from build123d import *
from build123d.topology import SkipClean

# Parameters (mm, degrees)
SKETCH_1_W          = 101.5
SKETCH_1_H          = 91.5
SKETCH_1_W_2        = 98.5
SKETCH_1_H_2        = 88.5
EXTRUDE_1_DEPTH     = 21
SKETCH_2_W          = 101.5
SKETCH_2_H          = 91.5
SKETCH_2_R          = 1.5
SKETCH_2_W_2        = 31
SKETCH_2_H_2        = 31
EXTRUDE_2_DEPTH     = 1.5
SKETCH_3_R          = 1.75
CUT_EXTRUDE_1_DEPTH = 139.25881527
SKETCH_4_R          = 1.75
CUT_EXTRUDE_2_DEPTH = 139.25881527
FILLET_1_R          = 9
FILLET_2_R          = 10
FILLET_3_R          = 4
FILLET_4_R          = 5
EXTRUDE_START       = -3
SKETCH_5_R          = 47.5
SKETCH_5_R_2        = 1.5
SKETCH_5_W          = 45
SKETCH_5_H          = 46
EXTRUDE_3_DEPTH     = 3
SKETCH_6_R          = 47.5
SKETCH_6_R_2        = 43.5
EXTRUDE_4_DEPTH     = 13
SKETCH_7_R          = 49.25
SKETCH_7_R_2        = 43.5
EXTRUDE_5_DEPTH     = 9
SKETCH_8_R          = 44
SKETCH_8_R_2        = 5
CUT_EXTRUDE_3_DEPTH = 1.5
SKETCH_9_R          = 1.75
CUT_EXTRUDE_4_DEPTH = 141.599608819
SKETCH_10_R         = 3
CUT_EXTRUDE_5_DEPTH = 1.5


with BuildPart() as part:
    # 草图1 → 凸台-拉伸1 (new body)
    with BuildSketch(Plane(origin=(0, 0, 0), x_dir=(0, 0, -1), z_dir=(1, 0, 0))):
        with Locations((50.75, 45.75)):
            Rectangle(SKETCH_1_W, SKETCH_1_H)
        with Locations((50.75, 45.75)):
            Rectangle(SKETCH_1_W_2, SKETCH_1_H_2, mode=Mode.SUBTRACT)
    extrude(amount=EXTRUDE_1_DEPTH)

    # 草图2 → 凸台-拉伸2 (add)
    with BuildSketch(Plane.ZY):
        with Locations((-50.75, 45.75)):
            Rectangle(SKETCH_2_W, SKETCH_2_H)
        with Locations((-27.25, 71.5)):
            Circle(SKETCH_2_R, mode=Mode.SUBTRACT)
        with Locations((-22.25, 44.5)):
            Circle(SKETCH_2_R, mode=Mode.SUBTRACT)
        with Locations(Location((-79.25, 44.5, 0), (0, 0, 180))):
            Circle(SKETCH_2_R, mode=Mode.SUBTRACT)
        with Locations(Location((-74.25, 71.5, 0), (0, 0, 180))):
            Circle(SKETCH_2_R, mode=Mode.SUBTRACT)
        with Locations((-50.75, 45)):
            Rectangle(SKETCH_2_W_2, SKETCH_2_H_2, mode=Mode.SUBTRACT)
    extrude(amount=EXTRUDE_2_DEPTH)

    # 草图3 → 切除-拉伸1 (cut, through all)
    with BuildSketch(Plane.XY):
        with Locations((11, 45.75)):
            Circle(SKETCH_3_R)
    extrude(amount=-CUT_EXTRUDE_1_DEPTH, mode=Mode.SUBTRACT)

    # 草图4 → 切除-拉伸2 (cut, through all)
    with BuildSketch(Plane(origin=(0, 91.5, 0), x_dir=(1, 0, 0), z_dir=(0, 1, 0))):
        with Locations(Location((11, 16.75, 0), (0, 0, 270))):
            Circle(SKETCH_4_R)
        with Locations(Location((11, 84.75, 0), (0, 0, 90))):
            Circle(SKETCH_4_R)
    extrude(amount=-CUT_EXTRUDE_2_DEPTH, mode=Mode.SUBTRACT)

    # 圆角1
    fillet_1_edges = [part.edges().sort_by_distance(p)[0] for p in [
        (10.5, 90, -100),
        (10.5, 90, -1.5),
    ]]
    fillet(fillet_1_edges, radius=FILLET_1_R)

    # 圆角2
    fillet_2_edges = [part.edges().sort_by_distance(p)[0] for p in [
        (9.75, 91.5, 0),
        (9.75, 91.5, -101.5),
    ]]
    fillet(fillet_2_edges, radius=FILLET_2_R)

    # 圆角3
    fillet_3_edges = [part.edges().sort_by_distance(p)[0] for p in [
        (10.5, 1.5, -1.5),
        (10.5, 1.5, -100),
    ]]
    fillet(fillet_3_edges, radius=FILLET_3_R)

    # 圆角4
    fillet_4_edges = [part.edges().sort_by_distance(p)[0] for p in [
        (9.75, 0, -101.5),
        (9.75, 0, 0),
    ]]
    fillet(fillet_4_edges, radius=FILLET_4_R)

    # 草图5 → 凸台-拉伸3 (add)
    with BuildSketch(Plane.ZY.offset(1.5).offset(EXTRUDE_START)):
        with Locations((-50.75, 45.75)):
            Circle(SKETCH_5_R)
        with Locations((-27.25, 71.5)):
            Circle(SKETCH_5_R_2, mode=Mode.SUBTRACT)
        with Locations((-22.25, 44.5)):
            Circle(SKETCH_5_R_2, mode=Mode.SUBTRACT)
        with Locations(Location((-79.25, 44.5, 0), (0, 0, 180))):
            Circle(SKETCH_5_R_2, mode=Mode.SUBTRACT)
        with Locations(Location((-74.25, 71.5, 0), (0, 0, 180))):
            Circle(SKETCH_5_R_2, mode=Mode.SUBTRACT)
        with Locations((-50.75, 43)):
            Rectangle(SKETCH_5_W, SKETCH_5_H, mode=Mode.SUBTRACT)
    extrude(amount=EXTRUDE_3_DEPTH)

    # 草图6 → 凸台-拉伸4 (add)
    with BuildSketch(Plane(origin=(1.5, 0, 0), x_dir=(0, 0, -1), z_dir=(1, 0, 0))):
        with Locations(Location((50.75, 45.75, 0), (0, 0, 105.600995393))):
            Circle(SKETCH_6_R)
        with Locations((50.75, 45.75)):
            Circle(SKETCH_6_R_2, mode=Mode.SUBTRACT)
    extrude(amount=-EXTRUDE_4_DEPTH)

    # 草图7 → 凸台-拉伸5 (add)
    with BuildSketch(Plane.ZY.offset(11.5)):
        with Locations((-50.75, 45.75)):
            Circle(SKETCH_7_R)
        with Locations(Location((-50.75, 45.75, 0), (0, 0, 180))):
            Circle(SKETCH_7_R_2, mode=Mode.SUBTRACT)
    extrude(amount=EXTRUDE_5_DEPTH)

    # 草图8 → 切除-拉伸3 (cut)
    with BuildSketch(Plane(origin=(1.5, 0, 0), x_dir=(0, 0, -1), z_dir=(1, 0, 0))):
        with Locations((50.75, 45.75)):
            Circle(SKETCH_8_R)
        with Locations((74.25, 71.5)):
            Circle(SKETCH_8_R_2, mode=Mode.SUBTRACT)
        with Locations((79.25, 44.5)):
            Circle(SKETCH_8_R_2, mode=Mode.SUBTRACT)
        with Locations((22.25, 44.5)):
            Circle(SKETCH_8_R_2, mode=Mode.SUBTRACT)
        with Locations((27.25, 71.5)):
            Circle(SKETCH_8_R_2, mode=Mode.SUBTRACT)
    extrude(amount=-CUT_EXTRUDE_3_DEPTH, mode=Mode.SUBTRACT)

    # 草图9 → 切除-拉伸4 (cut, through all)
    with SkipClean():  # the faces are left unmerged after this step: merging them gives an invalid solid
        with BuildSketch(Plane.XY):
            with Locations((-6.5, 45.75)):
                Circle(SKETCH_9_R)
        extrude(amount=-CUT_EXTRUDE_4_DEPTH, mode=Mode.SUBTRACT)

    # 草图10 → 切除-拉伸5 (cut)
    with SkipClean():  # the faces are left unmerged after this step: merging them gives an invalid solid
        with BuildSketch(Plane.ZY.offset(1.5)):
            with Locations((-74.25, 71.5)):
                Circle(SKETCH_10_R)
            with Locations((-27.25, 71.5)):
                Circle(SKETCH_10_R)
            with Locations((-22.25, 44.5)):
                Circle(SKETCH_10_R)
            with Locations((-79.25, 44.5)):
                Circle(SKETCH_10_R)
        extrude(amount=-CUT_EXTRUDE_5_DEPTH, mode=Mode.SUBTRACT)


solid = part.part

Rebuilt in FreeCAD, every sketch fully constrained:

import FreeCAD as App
import Part
import Sketcher
from FreeCAD import Vector
Q = App.Units.Quantity


def edges_at(feature, points):
    """Names of the edges that pass closest to the given points."""
    edges = feature.Shape.Edges
    near = lambda p: min(range(len(edges)), key=lambda i: edges[i].distToShape(Part.Vertex(*p))[0])
    return sorted({f"Edge{near(p) + 1}" for p in points})


def add_polygon(sketch, points):
    """Adds a closed chain of lines whose ends are joined by coincident constraints."""
    first, n = sketch.GeometryCount, len(points)
    for a, b in zip(points, points[1:] + points[:1]):
        sketch.addGeometry(Part.LineSegment(App.Vector(*a, 0), App.Vector(*b, 0)), False)
    for i in range(n):
        sketch.addConstraint(Sketcher.Constraint("Coincident", first + i, 2, first + (i + 1) % n, 1))

doc = App.newDocument("Part")
body = doc.addObject("PartDesign::Body", "Body")

# Sketch on YZ plane
sketch1 = doc.addObject("Sketcher::SketchObject", "Sketch")
body.addObject(sketch1)
sketch1.AttachmentSupport = (doc.YZ_Plane, [""])
sketch1.MapMode = "FlatFace"
add_polygon(sketch1, [(92, 0), (0, 0), (0, -102), (92, -102)])  # lines 0-3
add_polygon(sketch1, [(2, -100), (2, -2), (90, -2), (90, -100)])  # lines 4-7
sketch1.addConstraint([
    Sketcher.Constraint("Horizontal", 0),
    Sketcher.Constraint("Vertical", 1),
    Sketcher.Constraint("Horizontal", 2),
    Sketcher.Constraint("Vertical", 3),
    Sketcher.Constraint("Vertical", 4),
    Sketcher.Constraint("Horizontal", 5),
    Sketcher.Constraint("Vertical", 6),
    Sketcher.Constraint("Horizontal", 7),
    Sketcher.Constraint("Coincident", 0, 2, -1, 1),
    Sketcher.Constraint("DistanceX", 0, 2, 0, 1, Q("91.5 mm")),
    Sketcher.Constraint("DistanceX", 5, 1, 5, 2, Q("88.5 mm")),
    Sketcher.Constraint("DistanceY", 1, 2, 1, 1, Q("101.5 mm")),
    Sketcher.Constraint("DistanceY", 4, 1, 4, 2, Q("98.5 mm")),
    Sketcher.Constraint("DistanceX", -1, 1, 5, 2, Q("90 mm")),
    Sketcher.Constraint("DistanceY", 6, 2, -1, 1, Q("100 mm")),
])
pad1 = doc.addObject("PartDesign::Pad", "Pad")
body.addObject(pad1)
pad1.Profile = sketch1
pad1.Length = 21

# Sketch on YZ plane
sketch2 = doc.addObject("Sketcher::SketchObject", "Sketch001")
body.addObject(sketch2)
sketch2.AttachmentSupport = (doc.YZ_Plane, [""])
sketch2.MapMode = "FlatFace"
add_polygon(sketch2, [(91.5, -101.5), (0, -101.5), (0, 0), (91.5, 0)])  # lines 0-3
sketch2.addGeometry(Part.Circle(Vector(44.5, -79.2, 0), Vector(0, 0, 1), 1.5), False)  # 4
add_polygon(sketch2, [(29.5, -35.2), (29.5, -66.2), (60.5, -66.2), (60.5, -35.2)])  # lines 5-8
sketch2.addGeometry(Part.Circle(Vector(44.5, -22.2, 0), Vector(0, 0, 1), 1.5), False)  # 9
sketch2.addGeometry(Part.Circle(Vector(71.5, -74.2, 0), Vector(0, 0, 1), 1.5), False)  # 10
sketch2.addGeometry(Part.Circle(Vector(71.5, -27.2, 0), Vector(0, 0, 1), 1.5), False)  # 11
sketch2.addConstraint([
    Sketcher.Constraint("Horizontal", 0),
    Sketcher.Constraint("Vertical", 1),
    Sketcher.Constraint("Horizontal", 2),
    Sketcher.Constraint("Vertical", 3),
    Sketcher.Constraint("Vertical", 5),
    Sketcher.Constraint("Horizontal", 6),
    Sketcher.Constraint("Vertical", 7),
    Sketcher.Constraint("Horizontal", 8),
    Sketcher.Constraint("Coincident", 1, 2, -1, 1),
    Sketcher.Constraint("Equal", 4, 9),
    Sketcher.Constraint("Equal", 9, 10),
    Sketcher.Constraint("Equal", 10, 11),
    Sketcher.Constraint("Vertical", 4, 3, 9, 3),
    Sketcher.Constraint("Vertical", 10, 3, 11, 3),
    Sketcher.Constraint("Equal", 8, 5),
    Sketcher.Constraint("Diameter", 4, Q("3 mm")),
    Sketcher.Constraint("DistanceX", 6, 1, 6, 2, Q("31 mm")),
    Sketcher.Constraint("DistanceX", 0, 2, 0, 1, Q("91.5 mm")),
    Sketcher.Constraint("DistanceY", 1, 1, 1, 2, Q("101.5 mm")),
    Sketcher.Constraint("DistanceY", 4, 3, 9, 3, Q("57 mm")),
    Sketcher.Constraint("DistanceX", 4, 3, 10, 3, Q("27 mm")),
    Sketcher.Constraint("DistanceY", 4, 3, 10, 3, Q("5 mm")),
    Sketcher.Constraint("DistanceY", 11, 3, 9, 3, Q("5 mm")),
    Sketcher.Constraint("DistanceX", 11, 3, 2, 2, Q("20 mm")),
    Sketcher.Constraint("DistanceX", 5, 2, 4, 3, Q("15 mm")),
    Sketcher.Constraint("DistanceY", 4, 3, 5, 2, Q("13 mm")),
    Sketcher.Constraint("DistanceY", 4, 3, -1, 1, Q("79.25 mm")),
])
pad2 = doc.addObject("PartDesign::Pad", "Pad001")
body.addObject(pad2)
pad2.Profile = sketch2
pad2.Length = 1.5
pad2.Reversed = True

# Sketch on XY plane
sketch3 = doc.addObject("Sketcher::SketchObject", "Sketch002")
body.addObject(sketch3)
sketch3.AttachmentSupport = (doc.XY_Plane, [""])
sketch3.MapMode = "FlatFace"
sketch3.addGeometry(Part.Circle(Vector(11, 45.8, 0), Vector(0, 0, 1), 1.8), False)
sketch3.addConstraint([
    Sketcher.Constraint("Diameter", 0, Q("3.5 mm")),
    Sketcher.Constraint("DistanceX", -1, 1, 0, 3, Q("11 mm")),
    Sketcher.Constraint("DistanceY", -1, 1, 0, 3, Q("45.75 mm")),
])
pocket1 = doc.addObject("PartDesign::Pocket", "Pocket")
body.addObject(pocket1)
pocket1.Profile = sketch3
pocket1.Type = "ThroughAll"

# Sketch on XZ plane
sketch4 = doc.addObject("Sketcher::SketchObject", "Sketch003")
body.addObject(sketch4)
sketch4.AttachmentSupport = (doc.XZ_Plane, [""])
sketch4.MapMode = "FlatFace"
sketch4.AttachmentOffset = App.Placement(Vector(0, 0, -91.5), App.Rotation())
sketch4.addGeometry([
    Part.Circle(Vector(11, -16.8, 0), Vector(0, 0, 1), 1.8),
    Part.Circle(Vector(11, -84.8, 0), Vector(0, 0, 1), 1.8),
], False)
sketch4.addConstraint([
    Sketcher.Constraint("Equal", 0, 1),
    Sketcher.Constraint("Vertical", 0, 3, 1, 3),
    Sketcher.Constraint("Diameter", 0, Q("3.5 mm")),
    Sketcher.Constraint("DistanceX", -1, 1, 0, 3, Q("11 mm")),
    Sketcher.Constraint("DistanceY", 1, 3, 0, 3, Q("68 mm")),
    Sketcher.Constraint("DistanceY", 0, 3, -1, 1, Q("16.75 mm")),
])
pocket2 = doc.addObject("PartDesign::Pocket", "Pocket001")
body.addObject(pocket2)
pocket2.Profile = sketch4
pocket2.Type = "ThroughAll"
pocket2.Reversed = True
doc.recompute()

fillet = doc.addObject("PartDesign::Fillet", "Fillet")
body.addObject(fillet)
fillet.Base = (pocket2, edges_at(pocket2, [(10.5, 90, -100), (10.5, 90, -1.5)]))
fillet.Radius = 9
doc.recompute()

fillet2 = doc.addObject("PartDesign::Fillet", "Fillet001")
body.addObject(fillet2)
fillet2.Base = (fillet, edges_at(fillet, [(9.75, 91.5, 0), (9.75, 91.5, -101.5)]))
fillet2.Radius = 10
doc.recompute()

fillet3 = doc.addObject("PartDesign::Fillet", "Fillet002")
body.addObject(fillet3)
fillet3.Base = (fillet2, edges_at(fillet2, [(10.5, 1.5, -1.5), (10.5, 1.5, -100)]))
fillet3.Radius = 4
doc.recompute()

fillet4 = doc.addObject("PartDesign::Fillet", "Fillet003")
body.addObject(fillet4)
fillet4.Base = (fillet3, edges_at(fillet3, [(9.75, 0, -101.5), (9.75, 0, 0)]))
fillet4.Radius = 5

# Sketch on YZ plane
sketch5 = doc.addObject("Sketcher::SketchObject", "Sketch004")
body.addObject(sketch5)
sketch5.AttachmentSupport = (doc.YZ_Plane, [""])
sketch5.MapMode = "FlatFace"
sketch5.AttachmentOffset = App.Placement(Vector(0, 0, 1.5), App.Rotation())
sketch5.addGeometry(Part.Circle(Vector(45.8, -50.8, 0), Vector(0, 0, 1), 47.5), False)  # 0
sketch5.addGeometry(Part.Circle(Vector(44.5, -79.2, 0), Vector(0, 0, 1), 1.5), False)  # 1
add_polygon(sketch5, [(20, -28.2), (20, -73.2), (66, -73.2), (66, -28.2)])  # lines 2-5
sketch5.addGeometry(Part.Circle(Vector(44.5, -22.2, 0), Vector(0, 0, 1), 1.5), False)  # 6
sketch5.addGeometry(Part.Circle(Vector(71.5, -74.2, 0), Vector(0, 0, 1), 1.5), False)  # 7
sketch5.addGeometry(Part.Circle(Vector(71.5, -27.2, 0), Vector(0, 0, 1), 1.5), False)  # 8
sketch5.addConstraint([
    Sketcher.Constraint("Vertical", 2),
    Sketcher.Constraint("Horizontal", 3),
    Sketcher.Constraint("Vertical", 4),
    Sketcher.Constraint("Horizontal", 5),
    Sketcher.Constraint("Equal", 1, 6),
    Sketcher.Constraint("Equal", 6, 7),
    Sketcher.Constraint("Equal", 7, 8),
    Sketcher.Constraint("Vertical", 1, 3, 6, 3),
    Sketcher.Constraint("Vertical", 7, 3, 8, 3),
    Sketcher.Constraint("Diameter", 0, Q("95 mm")),
    Sketcher.Constraint("Diameter", 1, Q("3 mm")),
    Sketcher.Constraint("DistanceX", 3, 1, 3, 2, Q("46 mm")),
    Sketcher.Constraint("DistanceY", 2, 2, 2, 1, Q("45 mm")),
    Sketcher.Constraint("DistanceX", -1, 1, 2, 2, Q("20 mm")),
    Sketcher.Constraint("DistanceY", 1, 3, 6, 3, Q("57 mm")),
    Sketcher.Constraint("DistanceX", 1, 3, 7, 3, Q("27 mm")),
    Sketcher.Constraint("DistanceY", 1, 3, 7, 3, Q("5 mm")),
    Sketcher.Constraint("DistanceY", 8, 3, 6, 3, Q("5 mm")),
    Sketcher.Constraint("DistanceY", 1, 3, 2, 2, Q("6 mm")),
    Sketcher.Constraint("DistanceX", -1, 1, 1, 3, Q("44.5 mm")),
    Sketcher.Constraint("DistanceY", 1, 3, 0, 3, Q("28.5 mm")),
    Sketcher.Constraint("DistanceX", -1, 1, 0, 3, Q("45.75 mm")),
    Sketcher.Constraint("DistanceY", 0, 3, -1, 1, Q("50.75 mm")),
])
pad3 = doc.addObject("PartDesign::Pad", "Pad002")
body.addObject(pad3)
pad3.Profile = sketch5
pad3.Length = 3
pad3.Reversed = True

# Sketch on YZ plane
sketch6 = doc.addObject("Sketcher::SketchObject", "Sketch005")
body.addObject(sketch6)
sketch6.AttachmentSupport = (doc.YZ_Plane, [""])
sketch6.MapMode = "FlatFace"
sketch6.AttachmentOffset = App.Placement(Vector(0, 0, 1.5), App.Rotation())
sketch6.addGeometry([
    Part.Circle(Vector(46, -51, 0), Vector(0, 0, 1), 48),
    Part.Circle(Vector(46, -51, 0), Vector(0, 0, 1), 44),
], False)
sketch6.addConstraint([
    Sketcher.Constraint("Coincident", 1, 3, 0, 3),
    Sketcher.Constraint("Diameter", 0, Q("95 mm")),
    Sketcher.Constraint("Diameter", 1, Q("87 mm")),
    Sketcher.Constraint("DistanceX", -1, 1, 0, 3, Q("45.75 mm")),
    Sketcher.Constraint("DistanceY", 0, 3, -1, 1, Q("50.75 mm")),
])
pad4 = doc.addObject("PartDesign::Pad", "Pad003")
body.addObject(pad4)
pad4.Profile = sketch6
pad4.Length = 13
pad4.Reversed = True

# Sketch on YZ plane
sketch7 = doc.addObject("Sketcher::SketchObject", "Sketch006")
body.addObject(sketch7)
sketch7.AttachmentSupport = (doc.YZ_Plane, [""])
sketch7.MapMode = "FlatFace"
sketch7.AttachmentOffset = App.Placement(Vector(0, 0, -11.5), App.Rotation())
sketch7.addGeometry([
    Part.Circle(Vector(46, -51, 0), Vector(0, 0, 1), 49),
    Part.Circle(Vector(46, -51, 0), Vector(0, 0, 1), 44),
], False)
sketch7.addConstraint([
    Sketcher.Constraint("Coincident", 1, 3, 0, 3),
    Sketcher.Constraint("Diameter", 1, Q("87 mm")),
    Sketcher.Constraint("Diameter", 0, Q("98.5 mm")),
    Sketcher.Constraint("DistanceX", -1, 1, 0, 3, Q("45.75 mm")),
    Sketcher.Constraint("DistanceY", 0, 3, -1, 1, Q("50.75 mm")),
])
pad5 = doc.addObject("PartDesign::Pad", "Pad004")
body.addObject(pad5)
pad5.Profile = sketch7
pad5.Length = 9
pad5.Reversed = True

# Sketch on YZ plane
sketch8 = doc.addObject("Sketcher::SketchObject", "Sketch007")
body.addObject(sketch8)
sketch8.AttachmentSupport = (doc.YZ_Plane, [""])
sketch8.MapMode = "FlatFace"
sketch8.AttachmentOffset = App.Placement(Vector(0, 0, 1.5), App.Rotation())
sketch8.addGeometry([
    Part.Circle(Vector(46, -51, 0), Vector(0, 0, 1), 44),  # 0
    Part.Circle(Vector(44, -22, 0), Vector(0, 0, 1), 5),  # 1
    Part.Circle(Vector(44, -79, 0), Vector(0, 0, 1), 5),  # 2
    Part.Circle(Vector(72, -27, 0), Vector(0, 0, 1), 5),  # 3
    Part.Circle(Vector(72, -74, 0), Vector(0, 0, 1), 5),  # 4
], False)
sketch8.addConstraint([
    Sketcher.Constraint("Equal", 1, 2),
    Sketcher.Constraint("Equal", 2, 3),
    Sketcher.Constraint("Equal", 3, 4),
    Sketcher.Constraint("Vertical", 1, 3, 2, 3),
    Sketcher.Constraint("Vertical", 3, 3, 4, 3),
    Sketcher.Constraint("Diameter", 0, Q("88 mm")),
    Sketcher.Constraint("Diameter", 1, Q("10 mm")),
    Sketcher.Constraint("DistanceY", 2, 3, 1, 3, Q("57 mm")),
    Sketcher.Constraint("DistanceX", 1, 3, 3, 3, Q("27 mm")),
    Sketcher.Constraint("DistanceY", 3, 3, 1, 3, Q("5 mm")),
    Sketcher.Constraint("DistanceY", 2, 3, 4, 3, Q("5 mm")),
    Sketcher.Constraint("DistanceX", -1, 1, 1, 3, Q("44.5 mm")),
    Sketcher.Constraint("DistanceY", 0, 3, 1, 3, Q("28.5 mm")),
    Sketcher.Constraint("DistanceX", -1, 1, 0, 3, Q("45.75 mm")),
    Sketcher.Constraint("DistanceY", 0, 3, -1, 1, Q("50.75 mm")),
])
pocket3 = doc.addObject("PartDesign::Pocket", "Pocket002")
body.addObject(pocket3)
pocket3.Profile = sketch8
pocket3.Length = 1.5

# Sketch on XY plane
sketch9 = doc.addObject("Sketcher::SketchObject", "Sketch008")
body.addObject(sketch9)
sketch9.AttachmentSupport = (doc.XY_Plane, [""])
sketch9.MapMode = "FlatFace"
sketch9.addGeometry(Part.Circle(Vector(-6.5, 45.8, 0), Vector(0, 0, 1), 1.8), False)
sketch9.addConstraint([
    Sketcher.Constraint("Diameter", 0, Q("3.5 mm")),
    Sketcher.Constraint("DistanceX", 0, 3, -1, 1, Q("6.5 mm")),
    Sketcher.Constraint("DistanceY", -1, 1, 0, 3, Q("45.75 mm")),
])
pocket4 = doc.addObject("PartDesign::Pocket", "Pocket003")
body.addObject(pocket4)
pocket4.Profile = sketch9
pocket4.Type = "ThroughAll"

# Sketch on YZ plane
sketch10 = doc.addObject("Sketcher::SketchObject", "Sketch009")
body.addObject(sketch10)
sketch10.AttachmentSupport = (doc.YZ_Plane, [""])
sketch10.MapMode = "FlatFace"
sketch10.AttachmentOffset = App.Placement(Vector(0, 0, -1.5), App.Rotation())
sketch10.addGeometry([
    Part.Circle(Vector(71.5, -74.2, 0), Vector(0, 0, 1), 3),
    Part.Circle(Vector(71.5, -27.2, 0), Vector(0, 0, 1), 3),
    Part.Circle(Vector(44.5, -22.2, 0), Vector(0, 0, 1), 3),
    Part.Circle(Vector(44.5, -79.2, 0), Vector(0, 0, 1), 3),
], False)
sketch10.addConstraint([
    Sketcher.Constraint("Equal", 0, 1),
    Sketcher.Constraint("Equal", 1, 2),
    Sketcher.Constraint("Equal", 2, 3),
    Sketcher.Constraint("Vertical", 0, 3, 1, 3),
    Sketcher.Constraint("Vertical", 2, 3, 3, 3),
    Sketcher.Constraint("Diameter", 0, Q("6 mm")),
    Sketcher.Constraint("DistanceY", 0, 3, 1, 3, Q("47 mm")),
    Sketcher.Constraint("DistanceX", 2, 3, 1, 3, Q("27 mm")),
    Sketcher.Constraint("DistanceY", 1, 3, 2, 3, Q("5 mm")),
    Sketcher.Constraint("DistanceY", 3, 3, 0, 3, Q("5 mm")),
    Sketcher.Constraint("DistanceX", -1, 1, 0, 3, Q("71.5 mm")),
    Sketcher.Constraint("DistanceY", 0, 3, -1, 1, Q("74.25 mm")),
])
pocket5 = doc.addObject("PartDesign::Pocket", "Pocket004")
body.addObject(pocket5)
pocket5.Profile = sketch10
pocket5.Length = 1.5
pocket5.Reversed = True

doc.recompute()
